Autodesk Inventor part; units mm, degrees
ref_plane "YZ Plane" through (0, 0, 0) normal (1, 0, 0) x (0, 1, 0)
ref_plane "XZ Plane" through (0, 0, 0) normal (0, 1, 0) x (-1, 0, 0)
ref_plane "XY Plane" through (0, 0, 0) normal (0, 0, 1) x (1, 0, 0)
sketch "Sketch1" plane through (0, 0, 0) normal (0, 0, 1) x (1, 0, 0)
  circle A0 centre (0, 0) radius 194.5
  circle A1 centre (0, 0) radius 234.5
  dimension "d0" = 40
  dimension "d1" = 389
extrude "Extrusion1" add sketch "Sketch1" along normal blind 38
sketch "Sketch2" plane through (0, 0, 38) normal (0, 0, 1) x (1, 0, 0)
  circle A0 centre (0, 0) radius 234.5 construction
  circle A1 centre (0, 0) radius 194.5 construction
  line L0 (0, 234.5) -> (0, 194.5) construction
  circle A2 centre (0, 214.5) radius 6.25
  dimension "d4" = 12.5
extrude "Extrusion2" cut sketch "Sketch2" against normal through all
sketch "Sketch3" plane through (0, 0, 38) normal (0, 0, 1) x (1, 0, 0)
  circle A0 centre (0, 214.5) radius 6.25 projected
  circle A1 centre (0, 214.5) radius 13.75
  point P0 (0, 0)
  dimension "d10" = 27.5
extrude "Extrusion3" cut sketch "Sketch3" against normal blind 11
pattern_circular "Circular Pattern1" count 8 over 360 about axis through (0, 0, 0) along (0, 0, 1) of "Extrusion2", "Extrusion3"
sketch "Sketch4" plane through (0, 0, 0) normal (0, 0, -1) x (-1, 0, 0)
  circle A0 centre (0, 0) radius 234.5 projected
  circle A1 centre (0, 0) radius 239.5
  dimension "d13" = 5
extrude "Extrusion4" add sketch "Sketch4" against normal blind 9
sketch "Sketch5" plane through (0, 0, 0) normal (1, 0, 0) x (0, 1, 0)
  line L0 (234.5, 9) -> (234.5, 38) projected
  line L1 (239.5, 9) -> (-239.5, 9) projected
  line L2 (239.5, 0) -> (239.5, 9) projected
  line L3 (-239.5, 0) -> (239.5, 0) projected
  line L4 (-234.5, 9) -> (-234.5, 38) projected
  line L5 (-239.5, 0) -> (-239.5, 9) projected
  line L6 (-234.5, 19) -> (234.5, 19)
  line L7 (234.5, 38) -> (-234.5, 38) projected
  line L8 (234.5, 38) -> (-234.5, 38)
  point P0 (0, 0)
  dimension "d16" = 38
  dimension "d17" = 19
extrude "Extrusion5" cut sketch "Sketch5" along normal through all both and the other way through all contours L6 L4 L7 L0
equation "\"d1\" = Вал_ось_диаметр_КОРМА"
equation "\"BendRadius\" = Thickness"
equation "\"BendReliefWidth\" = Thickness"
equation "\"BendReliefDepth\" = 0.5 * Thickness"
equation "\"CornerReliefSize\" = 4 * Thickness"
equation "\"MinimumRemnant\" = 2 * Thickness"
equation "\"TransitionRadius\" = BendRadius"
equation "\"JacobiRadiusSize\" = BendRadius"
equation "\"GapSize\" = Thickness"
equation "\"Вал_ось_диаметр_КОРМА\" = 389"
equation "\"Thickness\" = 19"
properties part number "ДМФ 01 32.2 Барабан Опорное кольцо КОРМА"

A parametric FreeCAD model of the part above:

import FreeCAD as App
import Part
import Sketcher

V = App.Vector
Q = App.Units.Quantity


def add_polygon(sketch, points):
    """Adds a closed chain of lines whose ends are joined by coincident constraints."""
    first, n = sketch.GeometryCount, len(points)
    for a, b in zip(points, points[1:] + points[:1]):
        sketch.addGeometry(Part.LineSegment(App.Vector(*a, 0), App.Vector(*b, 0)), False)
    for i in range(n):
        sketch.addConstraint(Sketcher.Constraint("Coincident", first + i, 2, first + (i + 1) % n, 1))

doc = App.newDocument("Part")
params = doc.addObject("Spreadsheet::Sheet", "Params")
for row, (alias, value) in enumerate([
    ("sketch1_diameter", "389 mm"),
    ("sketch1_diameter2", "469 mm"),
    ("pad1_length", "38 mm"),
    ("sketch2_diameter", "12.5 mm"),
    ("sketch3_diameter", "27.5 mm"),
    ("sketch3_diameter2", "12.5 mm"),
    ("pocket2_length", "11 mm"),
    ("sketch4_diameter", "479 mm"),
    ("sketch4_diameter2", "469 mm"),
    ("pad2_length", "9 mm"),
    ("sketch5_height", "19 mm"),
    ("sketch5_width", "469 mm"),
], start=1):
    params.set(f"A{row}", alias)
    params.set(f"B{row}", "=" + value)
    params.setAlias(f"B{row}", alias)

body = doc.addObject("PartDesign::Body", "Body")

# Sketch on XY plane
sketch1 = doc.addObject("Sketcher::SketchObject", "Sketch")
body.addObject(sketch1)
sketch1.AttachmentSupport = (doc.XY_Plane, [""])
sketch1.MapMode = "FlatFace"
sketch1.addGeometry([
    Part.Circle(V(0, 0, 0), V(0, 0, 1), 234),
    Part.Circle(V(0, 0, 0), V(0, 0, 1), 194),
], False)
sketch1.addConstraint([
    Sketcher.Constraint("Coincident", 0, 3, -1, 1),
    Sketcher.Constraint("Coincident", 1, 3, -1, 1),
    Sketcher.Constraint("Diameter", 1, Q("389 mm")),
    Sketcher.Constraint("Diameter", 0, Q("469 mm")),
])
sketch1.setExpression("Constraints[2]", "Params.sketch1_diameter")
sketch1.setExpression("Constraints[3]", "Params.sketch1_diameter2")
pad1 = doc.addObject("PartDesign::Pad", "Pad")
body.addObject(pad1)
pad1.Profile = sketch1
pad1.setExpression("Length", "Params.pad1_length")

# Sketch on XY plane
sketch2 = doc.addObject("Sketcher::SketchObject", "Sketch001")
body.addObject(sketch2)
sketch2.AttachmentSupport = (doc.XY_Plane, [""])
sketch2.MapMode = "FlatFace"
sketch2.AttachmentOffset = App.Placement(V(0, 0, 38), App.Rotation())
sketch2.addGeometry(Part.Circle(V(0, 214, 0), V(0, 0, 1), 6), False)
sketch2.addConstraint([
    Sketcher.Constraint("PointOnObject", 0, 3, -2),
    Sketcher.Constraint("Diameter", 0, Q("12.5 mm")),
    Sketcher.Constraint("DistanceY", -1, 1, 0, 3, Q("214.5 mm")),
])
sketch2.setExpression("Constraints[1]", "Params.sketch2_diameter")
pocket1 = doc.addObject("PartDesign::Pocket", "Pocket")
body.addObject(pocket1)
pocket1.Profile = sketch2
pocket1.Type = "ThroughAll"

# Sketch on XY plane
sketch3 = doc.addObject("Sketcher::SketchObject", "Sketch002")
body.addObject(sketch3)
sketch3.AttachmentSupport = (doc.XY_Plane, [""])
sketch3.MapMode = "FlatFace"
sketch3.AttachmentOffset = App.Placement(V(0, 0, 38), App.Rotation())
sketch3.addGeometry([
    Part.Circle(V(0, 214, 0), V(0, 0, 1), 14),
    Part.Circle(V(0, 214, 0), V(0, 0, 1), 6),
], False)
sketch3.addConstraint([
    Sketcher.Constraint("Coincident", 1, 3, 0, 3),
    Sketcher.Constraint("PointOnObject", 0, 3, -2),
    Sketcher.Constraint("Diameter", 0, Q("27.5 mm")),
    Sketcher.Constraint("Diameter", 1, Q("12.5 mm")),
    Sketcher.Constraint("DistanceY", -1, 1, 0, 3, Q("214.5 mm")),
])
sketch3.setExpression("Constraints[2]", "Params.sketch3_diameter")
sketch3.setExpression("Constraints[3]", "Params.sketch3_diameter2")
pocket2 = doc.addObject("PartDesign::Pocket", "Pocket001")
body.addObject(pocket2)
pocket2.Profile = sketch3
pocket2.setExpression("Length", "Params.pocket2_length")
doc.recompute()

polarpattern = doc.addObject("PartDesign::PolarPattern", "PolarPattern")
body.addObject(polarpattern)
polarpattern.Originals = [pocket1, pocket2]
polarpattern.Axis = (doc.Z_Axis, [""])
polarpattern.Angle = 360
polarpattern.Occurrences = 8
body.Tip = polarpattern

# Sketch on XY plane
sketch4 = doc.addObject("Sketcher::SketchObject", "Sketch003")
body.addObject(sketch4)
sketch4.AttachmentSupport = (doc.XY_Plane, [""])
sketch4.MapMode = "FlatFace"
sketch4.addGeometry([
    Part.Circle(V(0, 0, 0), V(0, 0, 1), 240),
    Part.Circle(V(0, 0, 0), V(0, 0, 1), 234),
], False)
sketch4.addConstraint([
    Sketcher.Constraint("Coincident", 0, 3, -1, 1),
    Sketcher.Constraint("Coincident", 1, 3, -1, 1),
    Sketcher.Constraint("Diameter", 0, Q("479 mm")),
    Sketcher.Constraint("Diameter", 1, Q("469 mm")),
])
sketch4.setExpression("Constraints[2]", "Params.sketch4_diameter")
sketch4.setExpression("Constraints[3]", "Params.sketch4_diameter2")
pad2 = doc.addObject("PartDesign::Pad", "Pad001")
body.addObject(pad2)
pad2.Profile = sketch4
pad2.setExpression("Length", "Params.pad2_length")

# Sketch on YZ plane
sketch5 = doc.addObject("Sketcher::SketchObject", "Sketch004")
body.addObject(sketch5)
sketch5.AttachmentSupport = (doc.YZ_Plane, [""])
sketch5.MapMode = "FlatFace"
add_polygon(sketch5, [(-234, 19), (234, 19), (234, 38), (-234, 38)])  # lines 0-3
sketch5.addConstraint([
    Sketcher.Constraint("Horizontal", 0),
    Sketcher.Constraint("Vertical", 1),
    Sketcher.Constraint("Horizontal", 2),
    Sketcher.Constraint("Vertical", 3),
    Sketcher.Constraint("DistanceY", 1, 1, 1, 2, Q("19 mm")),
    Sketcher.Constraint("DistanceY", -1, 1, 0, 2, Q("19 mm")),
    Sketcher.Constraint("DistanceX", 0, 1, 0, 2, Q("469 mm")),
    Sketcher.Constraint("DistanceX", -1, 1, 0, 2, Q("234.5 mm")),
])
sketch5.setExpression("Constraints[8]", "Params.sketch5_height")
sketch5.setExpression("Constraints[10]", "Params.sketch5_width")
pocket3 = doc.addObject("PartDesign::Pocket", "Pocket002")
body.addObject(pocket3)
pocket3.Profile = sketch5
pocket3.Type = "ThroughAll"
pocket3.Midplane = True

doc.recompute()
